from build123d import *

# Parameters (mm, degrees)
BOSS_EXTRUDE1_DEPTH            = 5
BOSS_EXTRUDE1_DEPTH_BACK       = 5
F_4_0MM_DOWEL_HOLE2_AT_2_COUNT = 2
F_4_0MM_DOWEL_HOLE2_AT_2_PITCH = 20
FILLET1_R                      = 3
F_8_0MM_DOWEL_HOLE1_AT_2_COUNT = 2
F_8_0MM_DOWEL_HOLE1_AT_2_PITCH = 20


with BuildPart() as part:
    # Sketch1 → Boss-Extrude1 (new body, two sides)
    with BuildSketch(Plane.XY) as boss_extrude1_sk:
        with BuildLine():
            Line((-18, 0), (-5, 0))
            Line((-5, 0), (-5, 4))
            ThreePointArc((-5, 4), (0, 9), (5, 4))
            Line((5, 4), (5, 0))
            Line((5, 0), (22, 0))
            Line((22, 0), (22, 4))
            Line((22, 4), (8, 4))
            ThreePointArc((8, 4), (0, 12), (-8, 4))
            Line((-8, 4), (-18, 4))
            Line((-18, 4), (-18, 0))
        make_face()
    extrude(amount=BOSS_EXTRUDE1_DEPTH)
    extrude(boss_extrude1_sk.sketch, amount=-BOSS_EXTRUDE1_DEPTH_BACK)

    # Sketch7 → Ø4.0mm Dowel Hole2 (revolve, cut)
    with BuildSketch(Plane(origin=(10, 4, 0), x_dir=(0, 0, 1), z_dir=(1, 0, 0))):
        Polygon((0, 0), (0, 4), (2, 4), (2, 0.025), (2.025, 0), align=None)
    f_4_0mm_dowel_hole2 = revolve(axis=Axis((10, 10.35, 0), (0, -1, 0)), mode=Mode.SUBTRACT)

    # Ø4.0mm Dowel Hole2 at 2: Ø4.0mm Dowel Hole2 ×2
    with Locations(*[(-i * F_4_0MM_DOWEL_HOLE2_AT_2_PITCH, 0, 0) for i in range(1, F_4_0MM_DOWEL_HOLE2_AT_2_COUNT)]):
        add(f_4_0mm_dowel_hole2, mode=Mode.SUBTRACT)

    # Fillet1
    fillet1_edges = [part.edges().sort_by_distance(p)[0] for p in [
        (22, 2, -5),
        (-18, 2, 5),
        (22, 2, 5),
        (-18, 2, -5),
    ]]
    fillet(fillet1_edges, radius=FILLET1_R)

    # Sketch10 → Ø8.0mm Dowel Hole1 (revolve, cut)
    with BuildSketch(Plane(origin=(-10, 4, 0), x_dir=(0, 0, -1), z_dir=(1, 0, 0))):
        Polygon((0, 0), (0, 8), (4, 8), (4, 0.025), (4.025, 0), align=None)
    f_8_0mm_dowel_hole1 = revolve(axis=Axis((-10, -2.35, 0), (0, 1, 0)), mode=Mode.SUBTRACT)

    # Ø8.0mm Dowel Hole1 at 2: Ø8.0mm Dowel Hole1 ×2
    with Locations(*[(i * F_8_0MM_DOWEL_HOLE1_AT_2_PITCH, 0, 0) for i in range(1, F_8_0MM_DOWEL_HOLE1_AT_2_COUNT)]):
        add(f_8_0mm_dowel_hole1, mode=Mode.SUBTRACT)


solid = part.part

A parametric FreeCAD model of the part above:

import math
import FreeCAD as App
import Part
import Sketcher
from FreeCAD import Vector
Q = App.Units.Quantity


def edges_at(feature, points):
    """Names of the edges that pass closest to the given points."""
    edges = feature.Shape.Edges
    near = lambda p: min(range(len(edges)), key=lambda i: edges[i].distToShape(Part.Vertex(*p))[0])
    return sorted({f"Edge{near(p) + 1}" for p in points})


def add_polygon(sketch, points):
    """Adds a closed chain of lines whose ends are joined by coincident constraints."""
    first, n = sketch.GeometryCount, len(points)
    for a, b in zip(points, points[1:] + points[:1]):
        sketch.addGeometry(Part.LineSegment(App.Vector(*a, 0), App.Vector(*b, 0)), False)
    for i in range(n):
        sketch.addConstraint(Sketcher.Constraint("Coincident", first + i, 2, first + (i + 1) % n, 1))

doc = App.newDocument("Part")
params = doc.addObject("Spreadsheet::Sheet", "Params")
for row, (alias, value) in enumerate([
    ("sketch1_radius", "5 mm"),
    ("sketch1_radius2", "8 mm"),
    ("sketch1_width", "13 mm"),
    ("sketch1_width2", "17 mm"),
    ("sketch1_height", "4 mm"),
    ("pad1_length", "5 mm"),
    ("pad1_length2", "5 mm"),
    ("sketch2_width", "4 mm"),
    ("sketch2_height", "2 mm"),
    ("groove_angle", "360 deg"),
    ("linearpattern_pitch", "20 mm"),
    ("fillet_radius", "3 mm"),
    ("sketch3_width", "8 mm"),
    ("sketch3_height", "4 mm"),
    ("groove2_angle", "360 deg"),
    ("linearpattern2_pitch", "20 mm"),
], start=1):
    params.set(f"A{row}", alias)
    params.set(f"B{row}", "=" + value)
    params.setAlias(f"B{row}", alias)

body = doc.addObject("PartDesign::Body", "Body")

# Sketch on XY plane
sketch1 = body.newObject("Sketcher::SketchObject", "Sketch")
sketch1.AttachmentSupport = (doc.getObject("XY_Plane"), [""])
sketch1.MapMode = "FlatFace"
sketch1.addGeometry([
    Part.LineSegment(Vector(-18, 0, 0), Vector(-5, 0, 0)),  # 0
    Part.LineSegment(Vector(-5, 0, 0), Vector(-5, 4, 0)),  # 1
    Part.ArcOfCircle(Part.Circle(Vector(0, 4, 0), Vector(0, 0, 1), 5), math.radians(0), math.radians(180)),  # 2
    Part.LineSegment(Vector(5, 4, 0), Vector(5, 0, 0)),  # 3
    Part.LineSegment(Vector(5, 0, 0), Vector(22, 0, 0)),  # 4
    Part.LineSegment(Vector(22, 0, 0), Vector(22, 4, 0)),  # 5
    Part.LineSegment(Vector(22, 4, 0), Vector(8, 4, 0)),  # 6
    Part.ArcOfCircle(Part.Circle(Vector(0, 4, 0), Vector(0, 0, 1), 8), math.radians(0), math.radians(180)),  # 7
    Part.LineSegment(Vector(-8, 4, 0), Vector(-18, 4, 0)),  # 8
    Part.LineSegment(Vector(-18, 4, 0), Vector(-18, 0, 0)),  # 9
], False)
sketch1.addConstraint([
    Sketcher.Constraint("Coincident", 0, 2, 1, 1),
    Sketcher.Constraint("Tangent", 1, 2, 2, 2),
    Sketcher.Constraint("Tangent", 2, 1, 3, 1),
    Sketcher.Constraint("Coincident", 3, 2, 4, 1),
    Sketcher.Constraint("Coincident", 4, 2, 5, 1),
    Sketcher.Constraint("Coincident", 5, 2, 6, 1),
    Sketcher.Constraint("Coincident", 6, 2, 7, 1),
    Sketcher.Constraint("Coincident", 7, 2, 8, 1),
    Sketcher.Constraint("Coincident", 8, 2, 9, 1),
    Sketcher.Constraint("Coincident", 9, 2, 0, 1),
    Sketcher.Constraint("Horizontal", 0),
    Sketcher.Constraint("Vertical", 1),
    Sketcher.Constraint("Vertical", 3),
    Sketcher.Constraint("Horizontal", 4),
    Sketcher.Constraint("Vertical", 5),
    Sketcher.Constraint("Horizontal", 6),
    Sketcher.Constraint("Horizontal", 8),
    Sketcher.Constraint("Vertical", 9),
    Sketcher.Constraint("Coincident", 7, 3, 2, 3),
    Sketcher.Constraint("Symmetric", 0, 2, 3, 2, -1, 1),
    Sketcher.Constraint("PointOnObject", 0, 2, -1),
    Sketcher.Constraint("Horizontal", 2, 1, 5, 2),
    Sketcher.Constraint("Horizontal", 6, 2, 7, 2),
    Sketcher.Constraint("Radius", 2, 5.0),
    Sketcher.Constraint("Radius", 7, 8.0),
    Sketcher.Constraint("DistanceX", 0, 1, 0, 2, 13.0),
    Sketcher.Constraint("DistanceX", 4, 1, 4, 2, 17.0),
    Sketcher.Constraint("DistanceY", 1, 1, 1, 2, 4.0),
])
sketch1.setExpression("Constraints[23]", "Params.sketch1_radius")
sketch1.setExpression("Constraints[24]", "Params.sketch1_radius2")
sketch1.setExpression("Constraints[25]", "Params.sketch1_width")
sketch1.setExpression("Constraints[26]", "Params.sketch1_width2")
sketch1.setExpression("Constraints[27]", "Params.sketch1_height")
pad1 = body.newObject("PartDesign::Pad", "Pad")
pad1.Profile = sketch1
pad1.Type = "TwoLengths"
pad1.setExpression("Length", "Params.pad1_length")
pad1.setExpression("Length2", "Params.pad1_length2")

# Sketch on YZ plane
sketch2 = body.newObject("Sketcher::SketchObject", "Sketch001")
sketch2.AttachmentSupport = (doc.getObject("YZ_Plane"), [""])
sketch2.MapMode = "FlatFace"
sketch2.AttachmentOffset = App.Placement(Vector(0, 0, 10), App.Rotation())
add_polygon(sketch2, [(0, 0), (4, 0), (4, 2.025), (3.975, 2), (0, 2)])  # lines 0-4
sketch2.addConstraint([
    Sketcher.Constraint("Horizontal", 0),
    Sketcher.Constraint("Vertical", 1),
    Sketcher.Constraint("Horizontal", 3),
    Sketcher.Constraint("Vertical", 4),
    Sketcher.Constraint("Coincident", 4, 2, -1, 1),
    Sketcher.Constraint("DistanceX", 0, 1, 0, 2, 4.0),
    Sketcher.Constraint("DistanceY", 4, 2, 4, 1, 2.0),
    Sketcher.Constraint("Angle", 2, Q("-135 deg")),
    Sketcher.Constraint("DistanceX", 3, 2, 3, 1, 3.975),
])
sketch2.setExpression("Constraints[10]", "Params.sketch2_width")
sketch2.setExpression("Constraints[11]", "Params.sketch2_height")
groove = body.newObject("PartDesign::Groove", "Groove")
groove.Profile = sketch2
groove.ReferenceAxis = (sketch2, ["H_Axis"])
groove.setExpression("Angle", "Params.groove_angle")
doc.recompute()

linearpattern = body.newObject("PartDesign::LinearPattern", "LinearPattern")
linearpattern.Originals = [groove]
linearpattern.Direction = (doc.getObject("X_Axis"), [""])
linearpattern.Mode = "offset"
linearpattern.setExpression("Offset", "Params.linearpattern_pitch")
linearpattern.Occurrences = 2
linearpattern.Reversed = True
body.Tip = linearpattern
doc.recompute()

fillet = body.newObject("PartDesign::Fillet", "Fillet")
fillet.Base = (linearpattern, edges_at(linearpattern, [
    (22, 2, -5),
    (-18, 2, 5),
    (22, 2, 5),
    (-18, 2, -5),
]))
fillet.setExpression("Radius", "Params.fillet_radius")

# Sketch on YZ plane
sketch3 = body.newObject("Sketcher::SketchObject", "Sketch002")
sketch3.AttachmentSupport = (doc.getObject("YZ_Plane"), [""])
sketch3.MapMode = "FlatFace"
sketch3.AttachmentOffset = App.Placement(Vector(0, 0, -10), App.Rotation())
add_polygon(sketch3, [(12, 0), (4, 0), (4, -4.025), (4.025, -4), (12, -4)])  # lines 0-4
sketch3.addConstraint([
    Sketcher.Constraint("Horizontal", 0),
    Sketcher.Constraint("Vertical", 1),
    Sketcher.Constraint("Horizontal", 3),
    Sketcher.Constraint("Vertical", 4),
    Sketcher.Constraint("PointOnObject", 0, 2, -1),
    Sketcher.Constraint("DistanceX", 0, 2, 0, 1, 8.0),
    Sketcher.Constraint("DistanceY", 4, 1, 4, 2, 4.0),
    Sketcher.Constraint("Angle", 2, Q("45 deg")),
    Sketcher.Constraint("DistanceX", -1, 1, 0, 2, 4.0),
    Sketcher.Constraint("DistanceX", 3, 1, 3, 2, 7.975),
])
sketch3.setExpression("Constraints[10]", "Params.sketch3_width")
sketch3.setExpression("Constraints[11]", "Params.sketch3_height")
groove2 = body.newObject("PartDesign::Groove", "Groove001")
groove2.Profile = sketch3
groove2.ReferenceAxis = (sketch3, ["H_Axis"])
groove2.setExpression("Angle", "Params.groove2_angle")
doc.recompute()

linearpattern2 = body.newObject("PartDesign::LinearPattern", "LinearPattern001")
linearpattern2.Originals = [groove2]
linearpattern2.Direction = (doc.getObject("X_Axis"), [""])
linearpattern2.Mode = "offset"
linearpattern2.setExpression("Offset", "Params.linearpattern2_pitch")
linearpattern2.Occurrences = 2
body.Tip = linearpattern2

doc.recompute()
